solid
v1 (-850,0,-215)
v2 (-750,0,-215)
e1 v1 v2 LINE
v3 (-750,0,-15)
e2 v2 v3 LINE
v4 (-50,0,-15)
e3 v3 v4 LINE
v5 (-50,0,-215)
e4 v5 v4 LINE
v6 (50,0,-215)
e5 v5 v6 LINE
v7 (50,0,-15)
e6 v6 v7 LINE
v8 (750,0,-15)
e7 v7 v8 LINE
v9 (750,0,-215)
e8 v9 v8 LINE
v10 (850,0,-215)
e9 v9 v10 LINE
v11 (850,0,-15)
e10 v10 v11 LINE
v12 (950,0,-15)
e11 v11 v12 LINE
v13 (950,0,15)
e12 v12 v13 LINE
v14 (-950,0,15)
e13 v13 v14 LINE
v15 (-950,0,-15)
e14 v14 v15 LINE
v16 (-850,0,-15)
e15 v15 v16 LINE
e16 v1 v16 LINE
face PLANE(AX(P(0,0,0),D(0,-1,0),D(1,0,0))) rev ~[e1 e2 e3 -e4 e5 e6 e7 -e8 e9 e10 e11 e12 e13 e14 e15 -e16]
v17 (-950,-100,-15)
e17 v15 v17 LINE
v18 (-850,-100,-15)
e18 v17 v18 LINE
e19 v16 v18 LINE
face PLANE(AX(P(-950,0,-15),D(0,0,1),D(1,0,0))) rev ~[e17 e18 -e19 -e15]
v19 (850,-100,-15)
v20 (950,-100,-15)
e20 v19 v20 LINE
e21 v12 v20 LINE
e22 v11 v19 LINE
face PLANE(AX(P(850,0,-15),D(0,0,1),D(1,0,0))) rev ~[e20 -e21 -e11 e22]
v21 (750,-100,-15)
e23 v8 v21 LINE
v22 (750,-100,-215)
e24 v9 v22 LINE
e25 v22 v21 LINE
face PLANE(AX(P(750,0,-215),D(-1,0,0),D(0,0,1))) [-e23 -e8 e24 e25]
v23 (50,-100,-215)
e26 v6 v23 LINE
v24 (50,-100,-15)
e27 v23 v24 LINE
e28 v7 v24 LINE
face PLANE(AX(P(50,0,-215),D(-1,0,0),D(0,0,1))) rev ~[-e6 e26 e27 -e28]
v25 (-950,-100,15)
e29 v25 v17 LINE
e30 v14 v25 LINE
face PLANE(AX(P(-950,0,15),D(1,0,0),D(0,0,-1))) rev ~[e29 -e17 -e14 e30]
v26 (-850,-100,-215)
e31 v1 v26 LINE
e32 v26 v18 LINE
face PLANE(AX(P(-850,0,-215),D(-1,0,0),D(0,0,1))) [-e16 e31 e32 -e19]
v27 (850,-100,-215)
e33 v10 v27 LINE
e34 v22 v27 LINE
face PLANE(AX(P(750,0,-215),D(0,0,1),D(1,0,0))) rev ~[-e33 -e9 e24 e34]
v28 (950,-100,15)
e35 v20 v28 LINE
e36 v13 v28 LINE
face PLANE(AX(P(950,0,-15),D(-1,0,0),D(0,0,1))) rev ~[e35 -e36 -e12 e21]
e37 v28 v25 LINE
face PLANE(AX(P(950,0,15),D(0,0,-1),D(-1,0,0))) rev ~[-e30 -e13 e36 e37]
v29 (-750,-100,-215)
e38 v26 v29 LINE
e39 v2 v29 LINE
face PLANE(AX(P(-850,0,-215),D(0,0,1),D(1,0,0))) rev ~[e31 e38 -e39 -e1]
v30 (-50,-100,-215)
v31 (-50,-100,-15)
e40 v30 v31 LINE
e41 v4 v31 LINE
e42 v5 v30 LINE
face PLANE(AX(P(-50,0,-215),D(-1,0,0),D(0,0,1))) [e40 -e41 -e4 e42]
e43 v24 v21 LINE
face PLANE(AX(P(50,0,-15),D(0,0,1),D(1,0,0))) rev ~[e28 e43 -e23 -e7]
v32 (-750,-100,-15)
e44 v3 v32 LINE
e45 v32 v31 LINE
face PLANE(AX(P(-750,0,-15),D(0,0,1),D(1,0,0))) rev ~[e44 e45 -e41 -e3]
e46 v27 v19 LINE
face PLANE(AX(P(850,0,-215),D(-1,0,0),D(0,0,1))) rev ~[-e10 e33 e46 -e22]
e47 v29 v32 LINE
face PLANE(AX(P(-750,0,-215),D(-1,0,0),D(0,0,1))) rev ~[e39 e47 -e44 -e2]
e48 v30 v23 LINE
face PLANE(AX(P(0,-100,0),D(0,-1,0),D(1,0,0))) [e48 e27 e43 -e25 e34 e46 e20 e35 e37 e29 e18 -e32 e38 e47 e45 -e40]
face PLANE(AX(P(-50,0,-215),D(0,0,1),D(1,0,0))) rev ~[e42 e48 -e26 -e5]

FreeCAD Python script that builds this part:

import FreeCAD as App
import Part
import Sketcher
from FreeCAD import Vector

doc = App.newDocument("Part")
body = doc.addObject("PartDesign::Body", "Body")

sketch1 = doc.addObject("Sketcher::SketchObject", "Sketch")
body.addObject(sketch1)
sketch1.AttachmentSupport = (doc.XZ_Plane, [""])
sketch1.MapMode = "FlatFace"
sketch1.addGeometry(Part.LineSegment(Vector(950, -15, 0), Vector(950, 15, 0)), False)
sketch1.addGeometry(Part.LineSegment(Vector(950, 15, 0), Vector(-950, 15, 0)), False)
sketch1.addGeometry(Part.LineSegment(Vector(-950, 15, 0), Vector(-950, -15, 0)), False)
sketch1.addGeometry(Part.LineSegment(Vector(-950, -15, 0), Vector(-850, -15, 0)), False)
sketch1.addGeometry(Part.LineSegment(Vector(-850, -15, 0), Vector(-850, -215, 0)), False)
sketch1.addGeometry(Part.LineSegment(Vector(-850, -215, 0), Vector(-750, -215, 0)), False)
sketch1.addGeometry(Part.LineSegment(Vector(-750, -215, 0), Vector(-750, -15, 0)), False)
sketch1.addGeometry(Part.LineSegment(Vector(-750, -15, 0), Vector(-50, -15, 0)), False)
sketch1.addGeometry(Part.LineSegment(Vector(-50, -15, 0), Vector(-50, -215, 0)), False)
sketch1.addGeometry(Part.LineSegment(Vector(-50, -215, 0), Vector(50, -215, 0)), False)
sketch1.addGeometry(Part.LineSegment(Vector(50, -215, 0), Vector(50, -15, 0)), False)
sketch1.addGeometry(Part.LineSegment(Vector(50, -15, 0), Vector(750, -15, 0)), False)
sketch1.addGeometry(Part.LineSegment(Vector(750, -15, 0), Vector(750, -215, 0)), False)
sketch1.addGeometry(Part.LineSegment(Vector(750, -215, 0), Vector(850, -215, 0)), False)
sketch1.addGeometry(Part.LineSegment(Vector(850, -215, 0), Vector(850, -15, 0)), False)
sketch1.addGeometry(Part.LineSegment(Vector(850, -15, 0), Vector(950, -15, 0)), False)
sketch1.addConstraint(Sketcher.Constraint("Coincident", 0, 2, 1, 1))
sketch1.addConstraint(Sketcher.Constraint("Coincident", 1, 2, 2, 1))
sketch1.addConstraint(Sketcher.Constraint("Coincident", 2, 2, 3, 1))
sketch1.addConstraint(Sketcher.Constraint("Coincident", 3, 2, 4, 1))
sketch1.addConstraint(Sketcher.Constraint("Coincident", 4, 2, 5, 1))
sketch1.addConstraint(Sketcher.Constraint("Coincident", 5, 2, 6, 1))
sketch1.addConstraint(Sketcher.Constraint("Coincident", 6, 2, 7, 1))
sketch1.addConstraint(Sketcher.Constraint("Coincident", 7, 2, 8, 1))
sketch1.addConstraint(Sketcher.Constraint("Coincident", 8, 2, 9, 1))
sketch1.addConstraint(Sketcher.Constraint("Coincident", 9, 2, 10, 1))
sketch1.addConstraint(Sketcher.Constraint("Coincident", 10, 2, 11, 1))
sketch1.addConstraint(Sketcher.Constraint("Coincident", 11, 2, 12, 1))
sketch1.addConstraint(Sketcher.Constraint("Coincident", 12, 2, 13, 1))
sketch1.addConstraint(Sketcher.Constraint("Coincident", 13, 2, 14, 1))
sketch1.addConstraint(Sketcher.Constraint("Coincident", 14, 2, 15, 1))
sketch1.addConstraint(Sketcher.Constraint("Coincident", 15, 2, 0, 1))
sketch1.addConstraint(Sketcher.Constraint("Vertical", 0))
sketch1.addConstraint(Sketcher.Constraint("Horizontal", 1))
sketch1.addConstraint(Sketcher.Constraint("Vertical", 2))
sketch1.addConstraint(Sketcher.Constraint("Horizontal", 3))
sketch1.addConstraint(Sketcher.Constraint("Vertical", 4))
sketch1.addConstraint(Sketcher.Constraint("Horizontal", 5))
sketch1.addConstraint(Sketcher.Constraint("Vertical", 6))
sketch1.addConstraint(Sketcher.Constraint("Horizontal", 7))
sketch1.addConstraint(Sketcher.Constraint("Vertical", 8))
sketch1.addConstraint(Sketcher.Constraint("Horizontal", 9))
sketch1.addConstraint(Sketcher.Constraint("Vertical", 10))
sketch1.addConstraint(Sketcher.Constraint("Horizontal", 11))
sketch1.addConstraint(Sketcher.Constraint("Vertical", 12))
sketch1.addConstraint(Sketcher.Constraint("Horizontal", 13))
sketch1.addConstraint(Sketcher.Constraint("Vertical", 14))
sketch1.addConstraint(Sketcher.Constraint("Horizontal", 15))
sketch1.addConstraint(Sketcher.Constraint("Symmetric", 0, 2, 2, 2, -1, 1))
sketch1.addConstraint(Sketcher.Constraint("Symmetric", 7, 2, 10, 2, -2))
sketch1.addConstraint(Sketcher.Constraint("Symmetric", 5, 2, 12, 2, -2))
sketch1.addConstraint(Sketcher.Constraint("Symmetric", 3, 2, 14, 2, -2))
sketch1.addConstraint(Sketcher.Constraint("Horizontal", 3, 2, 6, 2))
sketch1.addConstraint(Sketcher.Constraint("Horizontal", 5, 2, 8, 2))
sketch1.addConstraint(Sketcher.Constraint("Equal", 3, 5))
sketch1.addConstraint(Sketcher.Constraint("Equal", 5, 9))
sketch1.addConstraint(Sketcher.Constraint("DistanceX", 1, 2, 1, 1, 1900.0))
sketch1.addConstraint(Sketcher.Constraint("DistanceX", 3, 1, 3, 2, 100.0))
sketch1.addConstraint(Sketcher.Constraint("DistanceY", 0, 1, 0, 2, 30.0))
sketch1.addConstraint(Sketcher.Constraint("DistanceY", 4, 2, 4, 1, 200.0))
pad1 = doc.addObject("PartDesign::Pad", "Pad")
body.addObject(pad1)
pad1.Profile = sketch1
pad1.Length = 100

doc.recompute()
